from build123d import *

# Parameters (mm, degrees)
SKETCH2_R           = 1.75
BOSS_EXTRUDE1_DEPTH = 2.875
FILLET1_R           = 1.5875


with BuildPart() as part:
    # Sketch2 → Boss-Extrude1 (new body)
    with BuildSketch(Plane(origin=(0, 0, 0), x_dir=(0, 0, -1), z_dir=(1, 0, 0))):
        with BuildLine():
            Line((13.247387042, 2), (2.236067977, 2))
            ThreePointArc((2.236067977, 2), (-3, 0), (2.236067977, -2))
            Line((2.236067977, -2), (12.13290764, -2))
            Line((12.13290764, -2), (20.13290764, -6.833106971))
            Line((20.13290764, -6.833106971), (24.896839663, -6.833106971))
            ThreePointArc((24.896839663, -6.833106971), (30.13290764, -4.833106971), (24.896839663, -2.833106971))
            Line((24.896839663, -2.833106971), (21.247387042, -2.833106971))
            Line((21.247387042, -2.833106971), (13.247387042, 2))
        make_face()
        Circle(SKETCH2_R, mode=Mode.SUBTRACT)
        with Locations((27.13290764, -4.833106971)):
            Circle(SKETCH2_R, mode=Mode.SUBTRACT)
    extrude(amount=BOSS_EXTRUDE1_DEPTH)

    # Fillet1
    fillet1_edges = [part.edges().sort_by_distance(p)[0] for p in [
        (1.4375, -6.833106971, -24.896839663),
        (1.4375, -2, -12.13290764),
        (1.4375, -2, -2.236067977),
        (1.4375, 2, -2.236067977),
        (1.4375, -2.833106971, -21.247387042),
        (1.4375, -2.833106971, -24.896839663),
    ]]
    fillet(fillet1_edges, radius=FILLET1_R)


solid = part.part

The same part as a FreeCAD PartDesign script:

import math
import FreeCAD as App
import Part
import Sketcher
from FreeCAD import Vector


def edges_at(feature, points):
    """Names of the edges that pass closest to the given points."""
    edges = feature.Shape.Edges
    near = lambda p: min(range(len(edges)), key=lambda i: edges[i].distToShape(Part.Vertex(*p))[0])
    return sorted({f"Edge{near(p) + 1}" for p in points})

doc = App.newDocument("Part")
body = doc.addObject("PartDesign::Body", "Body")

sketch1 = body.newObject("Sketcher::SketchObject", "Sketch")
sketch1.AttachmentSupport = (doc.getObject("YZ_Plane"), [""])
sketch1.MapMode = "FlatFace"
sketch1.addGeometry(Part.LineSegment(Vector(2, -13.2, 0), Vector(2, -2.2, 0)), False)
sketch1.addGeometry(Part.ArcOfCircle(Part.Circle(Vector(0, 0, 0), Vector(0, 0, 1), 3), math.radians(-48), math.radians(228)), False)
sketch1.addGeometry(Part.LineSegment(Vector(-2, -2.2, 0), Vector(-2, -12.1, 0)), False)
sketch1.addGeometry(Part.LineSegment(Vector(-2, -12.1, 0), Vector(-6.8, -20.1, 0)), False)
sketch1.addGeometry(Part.LineSegment(Vector(-6.8, -20.1, 0), Vector(-6.8, -24.9, 0)), False)
sketch1.addGeometry(Part.ArcOfCircle(Part.Circle(Vector(-4.8, -27.1, 0), Vector(0, 0, 1), 3), math.radians(132), math.radians(408)), False)
sketch1.addGeometry(Part.LineSegment(Vector(-2.8, -24.9, 0), Vector(-2.8, -21.2, 0)), False)
sketch1.addGeometry(Part.LineSegment(Vector(-2.8, -21.2, 0), Vector(2, -13.2, 0)), False)
sketch1.addGeometry(Part.Circle(Vector(-4.8, -27.1, 0), Vector(0, 0, 1), 1.8), False)
sketch1.addGeometry(Part.Circle(Vector(0, 0, 0), Vector(0, 0, 1), 1.8), False)
sketch1.addConstraint(Sketcher.Constraint("Coincident", 0, 2, 1, 1))
sketch1.addConstraint(Sketcher.Constraint("Coincident", 1, 2, 2, 1))
sketch1.addConstraint(Sketcher.Constraint("Coincident", 2, 2, 3, 1))
sketch1.addConstraint(Sketcher.Constraint("Coincident", 3, 2, 4, 1))
sketch1.addConstraint(Sketcher.Constraint("Coincident", 4, 2, 5, 1))
sketch1.addConstraint(Sketcher.Constraint("Coincident", 5, 2, 6, 1))
sketch1.addConstraint(Sketcher.Constraint("Coincident", 6, 2, 7, 1))
sketch1.addConstraint(Sketcher.Constraint("Coincident", 7, 2, 0, 1))
sketch1.addConstraint(Sketcher.Constraint("Vertical", 0))
sketch1.addConstraint(Sketcher.Constraint("Vertical", 2))
sketch1.addConstraint(Sketcher.Constraint("Vertical", 4))
sketch1.addConstraint(Sketcher.Constraint("Vertical", 6))
sketch1.addConstraint(Sketcher.Constraint("Coincident", 1, 3, -1, 1))
sketch1.addConstraint(Sketcher.Constraint("Coincident", 9, 3, -1, 1))
sketch1.addConstraint(Sketcher.Constraint("Coincident", 8, 3, 5, 3))
sketch1.addConstraint(Sketcher.Constraint("Equal", 1, 5))
sketch1.addConstraint(Sketcher.Constraint("Equal", 8, 9))
sketch1.addConstraint(Sketcher.Constraint("Parallel", 3, 7))
sketch1.addConstraint(Sketcher.Constraint("Horizontal", 0, 2, 1, 2))
sketch1.addConstraint(Sketcher.Constraint("Horizontal", 4, 2, 5, 2))
sketch1.addConstraint(Sketcher.Constraint("Equal", 3, 7))
sketch1.addConstraint(Sketcher.Constraint("Radius", 1, 3.0))
sketch1.addConstraint(Sketcher.Constraint("Diameter", 8, 3.5))
sketch1.addConstraint(Sketcher.Constraint("DistanceX", -1, 1, 0, 2, 2.0))
sketch1.addConstraint(Sketcher.Constraint("DistanceY", 5, 3, 2, 2, 15.0))
sketch1.addConstraint(Sketcher.Constraint("DistanceY", 5, 3, 3, 2, 7.0))
sketch1.addConstraint(Sketcher.Constraint("Distance", 3, 9.3466))
sketch1.addConstraint(Sketcher.Constraint("DistanceY", 0, 1, 0, 2, 11.011319))
sketch1.addConstraint(Sketcher.Constraint("DistanceY", 2, 2, 2, 1, 9.89684))
pad1 = body.newObject("PartDesign::Pad", "Pad")
pad1.Profile = sketch1
pad1.Length = 2.875
doc.recompute()

fillet = body.newObject("PartDesign::Fillet", "Fillet")
fillet.Base = (pad1, edges_at(pad1, [
    (1.438, -6.833, -24.897),
    (1.438, -2, -12.133),
    (1.438, -2, -2.236),
    (1.438, 2, -2.236),
    (1.438, -2.833, -21.247),
    (1.438, -2.833, -24.897),
]))
fillet.Radius = 1.5875

doc.recompute()
